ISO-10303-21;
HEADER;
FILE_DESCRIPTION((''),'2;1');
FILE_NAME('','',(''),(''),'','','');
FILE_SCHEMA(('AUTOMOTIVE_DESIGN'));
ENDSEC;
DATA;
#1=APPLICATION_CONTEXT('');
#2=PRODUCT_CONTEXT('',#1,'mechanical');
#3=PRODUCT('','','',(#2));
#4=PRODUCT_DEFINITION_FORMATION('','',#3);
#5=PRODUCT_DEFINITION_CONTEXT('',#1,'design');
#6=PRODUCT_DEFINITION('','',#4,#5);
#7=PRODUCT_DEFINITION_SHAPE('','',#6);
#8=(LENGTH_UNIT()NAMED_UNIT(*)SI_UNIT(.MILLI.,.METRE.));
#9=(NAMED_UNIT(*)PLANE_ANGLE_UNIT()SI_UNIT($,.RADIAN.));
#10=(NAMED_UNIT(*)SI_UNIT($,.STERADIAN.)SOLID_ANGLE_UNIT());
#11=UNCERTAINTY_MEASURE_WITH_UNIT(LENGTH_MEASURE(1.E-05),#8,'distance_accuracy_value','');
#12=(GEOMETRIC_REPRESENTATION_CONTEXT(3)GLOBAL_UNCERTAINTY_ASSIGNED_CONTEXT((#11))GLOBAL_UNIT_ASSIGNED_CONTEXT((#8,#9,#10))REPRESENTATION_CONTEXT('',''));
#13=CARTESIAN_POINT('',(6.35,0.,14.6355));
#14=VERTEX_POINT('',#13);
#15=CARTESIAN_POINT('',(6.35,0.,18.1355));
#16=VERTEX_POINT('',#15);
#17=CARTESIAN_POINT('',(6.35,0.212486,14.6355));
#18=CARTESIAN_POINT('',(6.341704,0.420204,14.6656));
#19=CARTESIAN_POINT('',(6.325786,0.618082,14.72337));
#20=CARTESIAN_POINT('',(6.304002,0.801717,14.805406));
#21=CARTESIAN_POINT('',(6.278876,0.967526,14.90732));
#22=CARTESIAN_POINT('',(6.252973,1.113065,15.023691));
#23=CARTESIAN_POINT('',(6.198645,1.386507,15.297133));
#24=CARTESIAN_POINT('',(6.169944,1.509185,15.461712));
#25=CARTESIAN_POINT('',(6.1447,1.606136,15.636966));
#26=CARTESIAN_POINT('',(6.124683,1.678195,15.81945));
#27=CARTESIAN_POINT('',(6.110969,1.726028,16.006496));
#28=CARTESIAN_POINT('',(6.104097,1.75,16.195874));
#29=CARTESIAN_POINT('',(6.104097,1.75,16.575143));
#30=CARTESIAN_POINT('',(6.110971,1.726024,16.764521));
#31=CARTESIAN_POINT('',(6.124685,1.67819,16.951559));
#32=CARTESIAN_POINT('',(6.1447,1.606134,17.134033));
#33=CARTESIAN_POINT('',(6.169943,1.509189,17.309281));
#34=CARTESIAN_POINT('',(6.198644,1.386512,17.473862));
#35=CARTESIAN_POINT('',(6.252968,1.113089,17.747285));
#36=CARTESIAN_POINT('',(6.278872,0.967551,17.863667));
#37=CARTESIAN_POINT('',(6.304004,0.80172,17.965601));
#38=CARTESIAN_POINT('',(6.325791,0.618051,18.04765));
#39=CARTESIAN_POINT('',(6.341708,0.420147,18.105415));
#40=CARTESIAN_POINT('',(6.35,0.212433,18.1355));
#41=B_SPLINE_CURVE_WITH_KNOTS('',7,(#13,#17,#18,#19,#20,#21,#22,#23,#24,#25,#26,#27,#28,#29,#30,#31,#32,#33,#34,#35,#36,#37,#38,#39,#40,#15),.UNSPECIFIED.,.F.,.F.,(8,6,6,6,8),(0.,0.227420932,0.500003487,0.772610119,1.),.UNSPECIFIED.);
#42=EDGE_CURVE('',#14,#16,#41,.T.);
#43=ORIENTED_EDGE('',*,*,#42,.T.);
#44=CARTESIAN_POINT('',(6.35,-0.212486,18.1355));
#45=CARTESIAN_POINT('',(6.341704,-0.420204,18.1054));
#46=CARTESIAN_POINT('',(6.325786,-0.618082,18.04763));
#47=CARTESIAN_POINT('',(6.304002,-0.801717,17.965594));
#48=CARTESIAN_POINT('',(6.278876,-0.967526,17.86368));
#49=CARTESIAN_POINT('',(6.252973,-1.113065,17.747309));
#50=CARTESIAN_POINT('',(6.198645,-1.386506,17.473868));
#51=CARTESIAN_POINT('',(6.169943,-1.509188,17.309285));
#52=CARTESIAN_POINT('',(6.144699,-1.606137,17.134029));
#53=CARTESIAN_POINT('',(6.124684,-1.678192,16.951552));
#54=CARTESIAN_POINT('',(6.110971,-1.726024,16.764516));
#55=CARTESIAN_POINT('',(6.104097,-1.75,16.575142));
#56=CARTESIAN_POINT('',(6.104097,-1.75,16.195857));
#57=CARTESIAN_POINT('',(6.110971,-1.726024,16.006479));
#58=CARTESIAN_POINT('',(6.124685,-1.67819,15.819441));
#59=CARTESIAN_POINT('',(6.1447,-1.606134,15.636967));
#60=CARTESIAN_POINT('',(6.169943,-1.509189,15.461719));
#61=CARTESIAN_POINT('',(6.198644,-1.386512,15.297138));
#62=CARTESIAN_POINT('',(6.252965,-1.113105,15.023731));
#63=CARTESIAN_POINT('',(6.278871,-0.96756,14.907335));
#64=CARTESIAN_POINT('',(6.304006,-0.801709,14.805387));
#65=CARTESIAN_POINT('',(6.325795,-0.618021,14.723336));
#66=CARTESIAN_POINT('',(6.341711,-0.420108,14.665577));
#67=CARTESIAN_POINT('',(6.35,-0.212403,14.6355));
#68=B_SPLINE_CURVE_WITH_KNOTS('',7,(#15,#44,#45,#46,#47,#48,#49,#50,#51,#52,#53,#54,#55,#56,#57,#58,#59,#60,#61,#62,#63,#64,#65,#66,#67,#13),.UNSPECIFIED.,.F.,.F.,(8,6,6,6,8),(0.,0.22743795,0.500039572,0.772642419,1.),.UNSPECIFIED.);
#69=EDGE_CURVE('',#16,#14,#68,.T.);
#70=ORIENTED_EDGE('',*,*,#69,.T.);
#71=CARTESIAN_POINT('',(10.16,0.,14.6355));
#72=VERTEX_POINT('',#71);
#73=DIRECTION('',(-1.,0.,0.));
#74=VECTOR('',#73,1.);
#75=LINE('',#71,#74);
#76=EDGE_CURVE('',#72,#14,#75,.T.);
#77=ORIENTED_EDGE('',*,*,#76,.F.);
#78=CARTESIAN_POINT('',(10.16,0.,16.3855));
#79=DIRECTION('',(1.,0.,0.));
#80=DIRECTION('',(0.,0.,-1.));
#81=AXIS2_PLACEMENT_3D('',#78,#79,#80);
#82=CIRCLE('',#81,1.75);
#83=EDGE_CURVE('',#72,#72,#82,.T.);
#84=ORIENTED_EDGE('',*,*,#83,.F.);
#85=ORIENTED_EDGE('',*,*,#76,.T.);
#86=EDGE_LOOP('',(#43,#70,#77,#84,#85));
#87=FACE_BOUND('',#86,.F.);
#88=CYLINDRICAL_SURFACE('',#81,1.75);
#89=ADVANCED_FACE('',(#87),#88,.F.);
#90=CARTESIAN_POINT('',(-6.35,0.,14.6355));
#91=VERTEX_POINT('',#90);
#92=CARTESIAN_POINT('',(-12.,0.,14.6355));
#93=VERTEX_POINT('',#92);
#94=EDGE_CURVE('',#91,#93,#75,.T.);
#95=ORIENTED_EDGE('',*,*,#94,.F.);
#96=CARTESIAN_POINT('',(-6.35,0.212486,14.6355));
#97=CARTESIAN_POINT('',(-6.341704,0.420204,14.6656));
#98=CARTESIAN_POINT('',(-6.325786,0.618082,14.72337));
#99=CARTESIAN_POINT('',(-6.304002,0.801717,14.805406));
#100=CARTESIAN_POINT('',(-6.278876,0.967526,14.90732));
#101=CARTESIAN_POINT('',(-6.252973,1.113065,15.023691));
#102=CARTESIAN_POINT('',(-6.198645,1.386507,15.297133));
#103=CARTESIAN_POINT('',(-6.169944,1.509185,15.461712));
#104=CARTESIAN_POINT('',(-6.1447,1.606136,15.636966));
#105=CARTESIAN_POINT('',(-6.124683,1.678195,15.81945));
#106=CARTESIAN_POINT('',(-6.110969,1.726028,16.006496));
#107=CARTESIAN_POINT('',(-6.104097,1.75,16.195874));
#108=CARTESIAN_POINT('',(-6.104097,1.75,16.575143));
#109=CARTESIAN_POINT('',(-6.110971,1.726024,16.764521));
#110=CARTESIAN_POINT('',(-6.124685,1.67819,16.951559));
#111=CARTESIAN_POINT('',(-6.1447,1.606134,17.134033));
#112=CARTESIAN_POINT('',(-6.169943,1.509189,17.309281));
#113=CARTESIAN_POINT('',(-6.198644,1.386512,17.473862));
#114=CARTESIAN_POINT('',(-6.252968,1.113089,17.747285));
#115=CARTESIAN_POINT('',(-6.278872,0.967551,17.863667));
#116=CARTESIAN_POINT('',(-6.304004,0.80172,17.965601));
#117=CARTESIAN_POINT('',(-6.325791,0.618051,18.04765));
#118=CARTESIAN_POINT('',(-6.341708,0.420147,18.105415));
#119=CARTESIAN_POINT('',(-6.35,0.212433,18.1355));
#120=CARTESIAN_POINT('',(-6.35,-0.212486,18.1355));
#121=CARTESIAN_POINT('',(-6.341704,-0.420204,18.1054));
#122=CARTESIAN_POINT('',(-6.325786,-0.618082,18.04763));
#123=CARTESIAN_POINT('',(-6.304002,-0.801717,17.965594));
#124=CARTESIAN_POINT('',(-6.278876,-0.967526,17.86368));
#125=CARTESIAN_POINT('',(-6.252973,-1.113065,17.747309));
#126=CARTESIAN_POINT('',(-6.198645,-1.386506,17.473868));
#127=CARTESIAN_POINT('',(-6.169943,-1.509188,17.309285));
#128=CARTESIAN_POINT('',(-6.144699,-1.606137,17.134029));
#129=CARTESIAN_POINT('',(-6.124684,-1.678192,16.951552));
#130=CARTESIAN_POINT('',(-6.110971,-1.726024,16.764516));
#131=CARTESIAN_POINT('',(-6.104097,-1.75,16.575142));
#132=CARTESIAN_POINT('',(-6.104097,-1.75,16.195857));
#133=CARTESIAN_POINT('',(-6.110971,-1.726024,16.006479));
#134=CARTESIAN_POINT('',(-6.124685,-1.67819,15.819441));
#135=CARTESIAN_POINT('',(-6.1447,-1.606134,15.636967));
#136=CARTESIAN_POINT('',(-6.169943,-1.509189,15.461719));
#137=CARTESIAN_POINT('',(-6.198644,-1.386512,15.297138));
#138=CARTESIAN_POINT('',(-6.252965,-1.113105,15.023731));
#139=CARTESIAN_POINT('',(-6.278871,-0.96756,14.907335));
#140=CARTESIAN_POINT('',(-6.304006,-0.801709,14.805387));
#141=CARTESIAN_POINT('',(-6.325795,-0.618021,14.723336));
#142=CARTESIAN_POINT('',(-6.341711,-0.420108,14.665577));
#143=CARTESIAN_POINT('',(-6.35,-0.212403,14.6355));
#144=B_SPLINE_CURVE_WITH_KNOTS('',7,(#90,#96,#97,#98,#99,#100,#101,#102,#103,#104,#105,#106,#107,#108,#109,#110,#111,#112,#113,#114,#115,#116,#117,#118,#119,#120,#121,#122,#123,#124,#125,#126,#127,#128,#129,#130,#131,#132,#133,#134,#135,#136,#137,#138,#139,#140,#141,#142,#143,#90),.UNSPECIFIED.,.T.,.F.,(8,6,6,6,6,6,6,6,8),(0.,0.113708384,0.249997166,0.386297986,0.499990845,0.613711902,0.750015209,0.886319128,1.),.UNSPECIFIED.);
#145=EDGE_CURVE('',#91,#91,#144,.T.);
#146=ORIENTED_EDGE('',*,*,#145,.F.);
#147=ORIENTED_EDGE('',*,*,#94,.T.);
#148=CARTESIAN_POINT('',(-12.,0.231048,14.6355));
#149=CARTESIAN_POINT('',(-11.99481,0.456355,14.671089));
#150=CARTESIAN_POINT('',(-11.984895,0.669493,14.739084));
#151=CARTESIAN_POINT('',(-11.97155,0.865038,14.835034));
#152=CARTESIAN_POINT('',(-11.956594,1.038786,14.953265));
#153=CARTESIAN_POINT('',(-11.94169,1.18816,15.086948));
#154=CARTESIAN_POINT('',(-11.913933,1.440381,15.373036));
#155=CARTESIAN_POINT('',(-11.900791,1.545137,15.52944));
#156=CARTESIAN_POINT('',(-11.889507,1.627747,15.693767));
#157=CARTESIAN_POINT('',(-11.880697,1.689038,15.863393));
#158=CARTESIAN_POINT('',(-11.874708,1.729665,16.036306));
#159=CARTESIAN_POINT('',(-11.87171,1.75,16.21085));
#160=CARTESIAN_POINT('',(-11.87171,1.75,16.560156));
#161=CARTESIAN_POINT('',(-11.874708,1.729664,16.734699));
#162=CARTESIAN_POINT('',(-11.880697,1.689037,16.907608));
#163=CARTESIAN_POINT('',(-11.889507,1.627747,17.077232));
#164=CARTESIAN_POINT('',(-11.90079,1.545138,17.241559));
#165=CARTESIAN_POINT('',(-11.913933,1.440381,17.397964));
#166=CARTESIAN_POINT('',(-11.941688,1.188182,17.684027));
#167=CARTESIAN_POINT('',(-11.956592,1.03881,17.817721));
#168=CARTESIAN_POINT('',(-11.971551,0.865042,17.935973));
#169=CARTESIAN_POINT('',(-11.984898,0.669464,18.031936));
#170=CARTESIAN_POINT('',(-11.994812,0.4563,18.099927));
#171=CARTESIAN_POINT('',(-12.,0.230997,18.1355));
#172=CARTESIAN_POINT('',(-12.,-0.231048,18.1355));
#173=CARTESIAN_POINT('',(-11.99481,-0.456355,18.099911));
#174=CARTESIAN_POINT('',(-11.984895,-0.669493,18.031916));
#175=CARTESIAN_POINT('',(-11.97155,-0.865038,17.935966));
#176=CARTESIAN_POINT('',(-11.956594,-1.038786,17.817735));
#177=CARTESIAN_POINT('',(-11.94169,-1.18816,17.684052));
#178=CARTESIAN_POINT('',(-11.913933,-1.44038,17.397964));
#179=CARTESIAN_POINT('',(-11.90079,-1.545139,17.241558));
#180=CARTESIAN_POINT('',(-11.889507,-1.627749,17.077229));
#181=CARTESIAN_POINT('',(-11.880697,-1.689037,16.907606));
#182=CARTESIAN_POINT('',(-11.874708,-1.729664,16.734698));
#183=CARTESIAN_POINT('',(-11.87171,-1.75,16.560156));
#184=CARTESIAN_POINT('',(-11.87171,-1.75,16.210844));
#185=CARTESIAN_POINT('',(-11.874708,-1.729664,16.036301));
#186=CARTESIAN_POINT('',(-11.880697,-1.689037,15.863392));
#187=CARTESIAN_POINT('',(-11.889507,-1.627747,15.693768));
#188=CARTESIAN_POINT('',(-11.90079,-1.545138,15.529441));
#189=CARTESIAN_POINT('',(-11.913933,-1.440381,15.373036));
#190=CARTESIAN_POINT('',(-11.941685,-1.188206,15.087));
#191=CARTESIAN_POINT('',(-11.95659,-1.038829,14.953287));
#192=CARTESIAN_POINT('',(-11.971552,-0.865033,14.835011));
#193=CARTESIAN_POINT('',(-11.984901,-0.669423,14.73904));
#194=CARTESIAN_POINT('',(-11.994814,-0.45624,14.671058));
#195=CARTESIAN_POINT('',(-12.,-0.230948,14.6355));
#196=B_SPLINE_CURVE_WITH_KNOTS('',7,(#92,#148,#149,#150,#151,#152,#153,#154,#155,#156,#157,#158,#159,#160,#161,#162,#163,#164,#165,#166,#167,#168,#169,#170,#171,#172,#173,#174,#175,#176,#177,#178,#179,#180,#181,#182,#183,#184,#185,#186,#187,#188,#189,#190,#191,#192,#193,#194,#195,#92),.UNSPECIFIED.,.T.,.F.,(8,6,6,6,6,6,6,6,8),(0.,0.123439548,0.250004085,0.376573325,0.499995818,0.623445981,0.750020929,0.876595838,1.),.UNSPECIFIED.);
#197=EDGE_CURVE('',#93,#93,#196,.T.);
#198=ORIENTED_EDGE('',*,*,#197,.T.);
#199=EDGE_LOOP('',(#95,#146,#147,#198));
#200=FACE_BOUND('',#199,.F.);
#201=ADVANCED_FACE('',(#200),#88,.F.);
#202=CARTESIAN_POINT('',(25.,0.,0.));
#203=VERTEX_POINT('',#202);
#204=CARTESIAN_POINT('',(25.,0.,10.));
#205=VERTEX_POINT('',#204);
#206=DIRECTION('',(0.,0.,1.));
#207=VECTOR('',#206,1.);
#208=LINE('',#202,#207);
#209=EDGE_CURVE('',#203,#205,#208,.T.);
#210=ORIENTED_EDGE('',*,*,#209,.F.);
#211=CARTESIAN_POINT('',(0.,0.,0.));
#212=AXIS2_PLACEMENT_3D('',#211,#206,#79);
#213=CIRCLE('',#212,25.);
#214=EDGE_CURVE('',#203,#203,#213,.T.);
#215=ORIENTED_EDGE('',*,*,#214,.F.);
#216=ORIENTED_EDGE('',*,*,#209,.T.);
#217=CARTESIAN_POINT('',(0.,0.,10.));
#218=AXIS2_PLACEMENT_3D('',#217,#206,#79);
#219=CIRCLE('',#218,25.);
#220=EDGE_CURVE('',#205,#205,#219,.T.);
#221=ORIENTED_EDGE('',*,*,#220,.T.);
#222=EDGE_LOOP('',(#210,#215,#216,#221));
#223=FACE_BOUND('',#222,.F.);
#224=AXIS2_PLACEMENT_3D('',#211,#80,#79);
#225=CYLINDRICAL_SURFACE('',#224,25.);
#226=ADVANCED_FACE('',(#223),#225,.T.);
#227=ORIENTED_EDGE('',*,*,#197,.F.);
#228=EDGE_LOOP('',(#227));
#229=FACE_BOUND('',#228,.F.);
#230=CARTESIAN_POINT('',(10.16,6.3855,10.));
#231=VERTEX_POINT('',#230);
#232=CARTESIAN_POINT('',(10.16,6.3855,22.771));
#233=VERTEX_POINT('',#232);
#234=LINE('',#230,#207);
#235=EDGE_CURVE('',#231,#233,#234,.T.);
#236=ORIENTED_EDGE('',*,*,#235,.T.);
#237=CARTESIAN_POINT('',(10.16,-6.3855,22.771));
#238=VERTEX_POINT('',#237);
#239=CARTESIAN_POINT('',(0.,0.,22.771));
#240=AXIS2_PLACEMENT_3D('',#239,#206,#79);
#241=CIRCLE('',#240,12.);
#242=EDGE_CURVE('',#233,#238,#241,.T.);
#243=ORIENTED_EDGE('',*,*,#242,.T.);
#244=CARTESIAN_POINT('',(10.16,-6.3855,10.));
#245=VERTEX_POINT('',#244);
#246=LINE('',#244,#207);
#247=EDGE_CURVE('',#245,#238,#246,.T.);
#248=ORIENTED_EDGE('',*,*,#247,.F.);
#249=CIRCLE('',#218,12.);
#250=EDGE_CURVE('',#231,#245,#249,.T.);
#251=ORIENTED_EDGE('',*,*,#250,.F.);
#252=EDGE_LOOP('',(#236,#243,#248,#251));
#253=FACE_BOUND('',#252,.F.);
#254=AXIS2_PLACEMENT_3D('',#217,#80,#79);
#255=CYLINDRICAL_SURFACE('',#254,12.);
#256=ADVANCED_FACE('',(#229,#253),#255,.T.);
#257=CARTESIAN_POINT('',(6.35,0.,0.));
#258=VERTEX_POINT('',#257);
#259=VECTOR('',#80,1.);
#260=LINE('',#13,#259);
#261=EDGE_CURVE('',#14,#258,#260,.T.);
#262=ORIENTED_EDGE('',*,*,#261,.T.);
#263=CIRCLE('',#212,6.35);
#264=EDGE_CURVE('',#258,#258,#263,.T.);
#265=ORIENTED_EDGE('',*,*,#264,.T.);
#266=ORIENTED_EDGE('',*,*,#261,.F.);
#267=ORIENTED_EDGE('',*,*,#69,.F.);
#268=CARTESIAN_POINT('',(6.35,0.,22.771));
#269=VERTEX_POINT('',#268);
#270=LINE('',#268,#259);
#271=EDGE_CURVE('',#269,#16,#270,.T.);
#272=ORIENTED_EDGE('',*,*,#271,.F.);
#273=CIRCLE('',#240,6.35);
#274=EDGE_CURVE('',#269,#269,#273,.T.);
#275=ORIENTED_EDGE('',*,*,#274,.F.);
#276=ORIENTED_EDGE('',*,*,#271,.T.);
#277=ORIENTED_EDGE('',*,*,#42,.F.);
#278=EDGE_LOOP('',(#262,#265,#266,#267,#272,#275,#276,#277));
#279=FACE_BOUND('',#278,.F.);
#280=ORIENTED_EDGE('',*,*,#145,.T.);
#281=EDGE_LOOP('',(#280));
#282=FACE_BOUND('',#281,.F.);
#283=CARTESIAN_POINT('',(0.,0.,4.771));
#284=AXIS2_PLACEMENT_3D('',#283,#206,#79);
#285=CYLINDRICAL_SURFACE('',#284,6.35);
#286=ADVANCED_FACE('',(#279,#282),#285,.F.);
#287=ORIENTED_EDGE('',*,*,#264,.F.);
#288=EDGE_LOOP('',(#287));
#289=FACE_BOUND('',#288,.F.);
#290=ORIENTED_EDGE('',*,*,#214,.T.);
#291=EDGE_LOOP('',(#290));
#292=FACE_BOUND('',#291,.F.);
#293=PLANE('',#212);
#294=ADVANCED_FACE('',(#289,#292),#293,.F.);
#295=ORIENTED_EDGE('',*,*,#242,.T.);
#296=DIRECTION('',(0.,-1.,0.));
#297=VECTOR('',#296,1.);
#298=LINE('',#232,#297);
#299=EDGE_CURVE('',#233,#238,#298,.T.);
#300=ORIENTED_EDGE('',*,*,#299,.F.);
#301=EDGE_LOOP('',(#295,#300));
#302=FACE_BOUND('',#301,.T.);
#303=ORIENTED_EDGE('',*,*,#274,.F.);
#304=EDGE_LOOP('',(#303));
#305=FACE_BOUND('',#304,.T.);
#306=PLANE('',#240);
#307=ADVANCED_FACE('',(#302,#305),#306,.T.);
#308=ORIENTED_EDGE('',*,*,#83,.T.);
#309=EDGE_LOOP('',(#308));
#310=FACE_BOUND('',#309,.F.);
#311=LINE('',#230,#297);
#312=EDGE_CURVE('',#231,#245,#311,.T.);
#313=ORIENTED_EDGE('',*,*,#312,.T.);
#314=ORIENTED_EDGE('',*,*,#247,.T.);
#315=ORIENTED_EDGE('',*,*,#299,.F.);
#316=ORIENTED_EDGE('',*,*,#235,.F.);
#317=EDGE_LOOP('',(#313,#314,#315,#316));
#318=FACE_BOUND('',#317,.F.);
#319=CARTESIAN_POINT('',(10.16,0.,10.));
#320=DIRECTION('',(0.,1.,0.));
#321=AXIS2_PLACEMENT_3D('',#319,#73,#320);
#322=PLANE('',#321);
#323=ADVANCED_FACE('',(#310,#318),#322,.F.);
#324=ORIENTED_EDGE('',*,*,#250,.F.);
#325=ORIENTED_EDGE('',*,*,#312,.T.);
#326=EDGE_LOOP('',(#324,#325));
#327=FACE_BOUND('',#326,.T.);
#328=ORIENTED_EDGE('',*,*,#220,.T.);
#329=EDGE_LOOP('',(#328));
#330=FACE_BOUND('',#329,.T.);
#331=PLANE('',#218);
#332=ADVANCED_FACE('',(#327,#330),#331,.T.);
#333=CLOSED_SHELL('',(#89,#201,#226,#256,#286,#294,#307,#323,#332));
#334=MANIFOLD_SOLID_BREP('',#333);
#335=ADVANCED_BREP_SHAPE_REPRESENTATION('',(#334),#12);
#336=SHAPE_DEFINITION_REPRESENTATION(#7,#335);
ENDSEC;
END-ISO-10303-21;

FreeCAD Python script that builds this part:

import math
import FreeCAD as App
import Part
import Sketcher
Q = App.Units.Quantity

doc = App.newDocument("Part")
params = doc.addObject("Spreadsheet::Sheet", "Params")
for row, (alias, value) in enumerate([
    ("sketch1_diameter", "50 mm"),
    ("pad1_length", "10 mm"),
    ("sketch2_radius", "12 mm"),
    ("pad2_length", "12.771 mm"),
    ("sketch3_diameter", "12.7 mm"),
    ("pocket1_length", "18 mm"),
    ("sketch4_diameter", "3.5 mm"),
    ("pocket2_length", "25 mm"),
    ("sketch5_diameter", "12.7 mm"),
    ("pocket3_length", "10 mm"),
], start=1):
    params.set(f"A{row}", alias)
    params.set(f"B{row}", "=" + value)
    params.setAlias(f"B{row}", alias)

body = doc.addObject("PartDesign::Body", "Body")

# Sketch on XY plane
sketch1 = doc.addObject("Sketcher::SketchObject", "Sketch")
body.addObject(sketch1)
sketch1.AttachmentSupport = (doc.XY_Plane, [""])
sketch1.MapMode = "FlatFace"
sketch1.addGeometry(Part.Circle(App.Vector(0, 0, 0), App.Vector(0, 0, 1), 25), False)
sketch1.addConstraint([
    Sketcher.Constraint("Coincident", 0, 3, -1, 1),
    Sketcher.Constraint("Diameter", 0, Q("50 mm")),
])
sketch1.setExpression("Constraints[1]", "Params.sketch1_diameter")
pad1 = doc.addObject("PartDesign::Pad", "Pad")
body.addObject(pad1)
pad1.Profile = sketch1
pad1.setExpression("Length", "Params.pad1_length")

# Sketch on XY plane
sketch2 = doc.addObject("Sketcher::SketchObject", "Sketch001")
body.addObject(sketch2)
sketch2.AttachmentSupport = (doc.XY_Plane, [""])
sketch2.MapMode = "FlatFace"
sketch2.AttachmentOffset = App.Placement(App.Vector(0, 0, 10), App.Rotation())
sketch2.addGeometry([
    Part.LineSegment(App.Vector(10, -6, 0), App.Vector(10, 6, 0)),
    Part.ArcOfCircle(Part.Circle(App.Vector(0, 0, 0), App.Vector(0, 0, 1), 12), math.radians(32), math.radians(328)),
], False)
sketch2.addConstraint([
    Sketcher.Constraint("Coincident", 0, 1, 1, 2),
    Sketcher.Constraint("Coincident", 1, 1, 0, 2),
    Sketcher.Constraint("Vertical", 0),
    Sketcher.Constraint("Coincident", 1, 3, -1, 1),
    Sketcher.Constraint("Radius", 1, Q("12 mm")),
    Sketcher.Constraint("DistanceY", 0, 1, 0, 2, Q("12.771 mm")),
])
sketch2.setExpression("Constraints[4]", "Params.sketch2_radius")
pad2 = doc.addObject("PartDesign::Pad", "Pad001")
body.addObject(pad2)
pad2.Profile = sketch2
pad2.setExpression("Length", "Params.pad2_length")

# Sketch on XY plane
sketch3 = doc.addObject("Sketcher::SketchObject", "Sketch002")
body.addObject(sketch3)
sketch3.AttachmentSupport = (doc.XY_Plane, [""])
sketch3.MapMode = "FlatFace"
sketch3.AttachmentOffset = App.Placement(App.Vector(0, 0, 22.771), App.Rotation())
sketch3.addGeometry(Part.Circle(App.Vector(0, 0, 0), App.Vector(0, 0, 1), 6), False)
sketch3.addConstraint([
    Sketcher.Constraint("Coincident", 0, 3, -1, 1),
    Sketcher.Constraint("Diameter", 0, Q("12.7 mm")),
])
sketch3.setExpression("Constraints[1]", "Params.sketch3_diameter")
pocket1 = doc.addObject("PartDesign::Pocket", "Pocket")
body.addObject(pocket1)
pocket1.Profile = sketch3
pocket1.setExpression("Length", "Params.pocket1_length")

# Sketch on YZ plane
sketch4 = doc.addObject("Sketcher::SketchObject", "Sketch003")
body.addObject(sketch4)
sketch4.AttachmentSupport = (doc.YZ_Plane, [""])
sketch4.MapMode = "FlatFace"
sketch4.AttachmentOffset = App.Placement(App.Vector(0, 0, 10.16), App.Rotation())
sketch4.addGeometry(Part.Circle(App.Vector(0, 16.4, 0), App.Vector(0, 0, 1), 1.8), False)
sketch4.addConstraint([
    Sketcher.Constraint("PointOnObject", 0, 3, -2),
    Sketcher.Constraint("Diameter", 0, Q("3.5 mm")),
    Sketcher.Constraint("DistanceY", -1, 1, 0, 3, Q("16.3855 mm")),
])
sketch4.setExpression("Constraints[1]", "Params.sketch4_diameter")
pocket2 = doc.addObject("PartDesign::Pocket", "Pocket001")
body.addObject(pocket2)
pocket2.Profile = sketch4
pocket2.setExpression("Length", "Params.pocket2_length")

# Sketch on XY plane
sketch5 = doc.addObject("Sketcher::SketchObject", "Sketch004")
body.addObject(sketch5)
sketch5.AttachmentSupport = (doc.XY_Plane, [""])
sketch5.MapMode = "FlatFace"
sketch5.AttachmentOffset = App.Placement(App.Vector(0, 0, 4.771), App.Rotation())
sketch5.addGeometry(Part.Circle(App.Vector(0, 0, 0), App.Vector(0, 0, 1), 6), False)
sketch5.addConstraint([
    Sketcher.Constraint("Coincident", 0, 3, -1, 1),
    Sketcher.Constraint("Diameter", 0, Q("12.7 mm")),
])
sketch5.setExpression("Constraints[1]", "Params.sketch5_diameter")
pocket3 = doc.addObject("PartDesign::Pocket", "Pocket002")
body.addObject(pocket3)
pocket3.Profile = sketch5
pocket3.setExpression("Length", "Params.pocket3_length")

doc.recompute()
